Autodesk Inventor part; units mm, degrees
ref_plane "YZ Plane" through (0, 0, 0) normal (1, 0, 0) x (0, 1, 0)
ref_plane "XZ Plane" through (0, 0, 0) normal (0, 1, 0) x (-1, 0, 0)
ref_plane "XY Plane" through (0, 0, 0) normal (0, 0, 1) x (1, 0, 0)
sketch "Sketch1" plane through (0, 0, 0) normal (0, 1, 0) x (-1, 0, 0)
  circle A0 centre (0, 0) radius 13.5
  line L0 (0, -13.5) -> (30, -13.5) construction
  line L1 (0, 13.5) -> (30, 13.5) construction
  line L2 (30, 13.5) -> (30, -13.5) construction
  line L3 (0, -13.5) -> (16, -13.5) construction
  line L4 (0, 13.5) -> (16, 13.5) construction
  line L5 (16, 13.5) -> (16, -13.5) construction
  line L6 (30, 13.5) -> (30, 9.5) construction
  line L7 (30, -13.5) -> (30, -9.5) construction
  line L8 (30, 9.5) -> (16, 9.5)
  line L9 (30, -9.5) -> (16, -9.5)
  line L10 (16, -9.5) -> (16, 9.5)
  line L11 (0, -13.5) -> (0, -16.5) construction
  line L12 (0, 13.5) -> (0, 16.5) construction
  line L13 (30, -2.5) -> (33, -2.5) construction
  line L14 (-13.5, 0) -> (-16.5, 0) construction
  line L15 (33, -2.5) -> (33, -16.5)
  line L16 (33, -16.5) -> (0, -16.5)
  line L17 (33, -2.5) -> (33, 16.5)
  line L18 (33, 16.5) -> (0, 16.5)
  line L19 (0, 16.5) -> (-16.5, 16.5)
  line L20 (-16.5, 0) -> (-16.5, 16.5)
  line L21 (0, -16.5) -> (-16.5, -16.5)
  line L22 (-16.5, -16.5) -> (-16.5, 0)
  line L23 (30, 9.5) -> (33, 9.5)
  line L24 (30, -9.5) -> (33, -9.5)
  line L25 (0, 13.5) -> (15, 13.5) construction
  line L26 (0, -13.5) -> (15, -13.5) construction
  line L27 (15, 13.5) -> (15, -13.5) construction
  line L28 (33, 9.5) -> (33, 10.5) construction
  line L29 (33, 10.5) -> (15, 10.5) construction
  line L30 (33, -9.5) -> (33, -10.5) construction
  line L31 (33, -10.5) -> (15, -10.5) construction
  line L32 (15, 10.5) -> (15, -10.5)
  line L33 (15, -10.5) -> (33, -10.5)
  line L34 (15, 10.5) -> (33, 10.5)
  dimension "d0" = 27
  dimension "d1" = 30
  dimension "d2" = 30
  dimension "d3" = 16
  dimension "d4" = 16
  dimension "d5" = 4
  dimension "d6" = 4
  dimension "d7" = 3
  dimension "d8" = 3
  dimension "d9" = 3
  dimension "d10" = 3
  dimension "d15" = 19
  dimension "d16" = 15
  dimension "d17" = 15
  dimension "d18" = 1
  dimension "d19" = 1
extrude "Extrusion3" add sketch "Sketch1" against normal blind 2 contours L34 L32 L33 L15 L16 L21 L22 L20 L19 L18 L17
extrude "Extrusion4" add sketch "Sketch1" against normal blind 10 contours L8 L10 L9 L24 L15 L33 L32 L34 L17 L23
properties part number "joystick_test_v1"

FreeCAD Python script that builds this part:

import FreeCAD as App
import Part
import Sketcher
from FreeCAD import Vector

doc = App.newDocument("Part")
params = doc.addObject("Spreadsheet::Sheet", "Params")
for row, (alias, value) in enumerate([
    ("sketch1_diameter", "27 mm"),
    ("sketch1_width", "18 mm"),
    ("sketch1_height", "6 mm"),
    ("sketch1_width2", "49.5 mm"),
    ("pad1_length", "2 mm"),
    ("sketch2_height", "1 mm"),
    ("sketch2_height2", "19 mm"),
    ("sketch2_width", "17 mm"),
    ("pad2_length", "10 mm"),
], start=1):
    params.set(f"A{row}", alias)
    params.set(f"B{row}", "=" + value)
    params.setAlias(f"B{row}", alias)

body = doc.addObject("PartDesign::Body", "Body")

# Sketch on XZ plane
sketch1 = body.newObject("Sketcher::SketchObject", "Sketch")
sketch1.AttachmentSupport = (doc.getObject("XZ_Plane"), [""])
sketch1.MapMode = "FlatFace"
sketch1.addGeometry(Part.LineSegment(Vector(-15, 10, 0), Vector(-33, 10, 0)), False)
sketch1.addGeometry(Part.LineSegment(Vector(-33, 10, 0), Vector(-33, 16, 0)), False)
sketch1.addGeometry(Part.LineSegment(Vector(-33, 16, 0), Vector(16, 16, 0)), False)
sketch1.addGeometry(Part.LineSegment(Vector(16, 16, 0), Vector(16, -16, 0)), False)
sketch1.addGeometry(Part.LineSegment(Vector(16, -16, 0), Vector(-33, -16, 0)), False)
sketch1.addGeometry(Part.LineSegment(Vector(-33, -16, 0), Vector(-33, -10, 0)), False)
sketch1.addGeometry(Part.LineSegment(Vector(-33, -10, 0), Vector(-15, -10, 0)), False)
sketch1.addGeometry(Part.LineSegment(Vector(-15, -10, 0), Vector(-15, 10, 0)), False)
sketch1.addGeometry(Part.Circle(Vector(0, 0, 0), Vector(0, 0, 1), 14), False)
sketch1.addConstraint(Sketcher.Constraint("Coincident", 0, 2, 1, 1))
sketch1.addConstraint(Sketcher.Constraint("Coincident", 1, 2, 2, 1))
sketch1.addConstraint(Sketcher.Constraint("Coincident", 2, 2, 3, 1))
sketch1.addConstraint(Sketcher.Constraint("Coincident", 3, 2, 4, 1))
sketch1.addConstraint(Sketcher.Constraint("Coincident", 4, 2, 5, 1))
sketch1.addConstraint(Sketcher.Constraint("Coincident", 5, 2, 6, 1))
sketch1.addConstraint(Sketcher.Constraint("Coincident", 6, 2, 7, 1))
sketch1.addConstraint(Sketcher.Constraint("Coincident", 7, 2, 0, 1))
sketch1.addConstraint(Sketcher.Constraint("Horizontal", 0))
sketch1.addConstraint(Sketcher.Constraint("Vertical", 1))
sketch1.addConstraint(Sketcher.Constraint("Horizontal", 2))
sketch1.addConstraint(Sketcher.Constraint("Vertical", 3))
sketch1.addConstraint(Sketcher.Constraint("Horizontal", 4))
sketch1.addConstraint(Sketcher.Constraint("Vertical", 5))
sketch1.addConstraint(Sketcher.Constraint("Horizontal", 6))
sketch1.addConstraint(Sketcher.Constraint("Vertical", 7))
sketch1.addConstraint(Sketcher.Constraint("Coincident", 8, 3, -1, 1))
sketch1.addConstraint(Sketcher.Constraint("Symmetric", 1, 2, 4, 2, -1))
sketch1.addConstraint(Sketcher.Constraint("Equal", 1, 5))
sketch1.addConstraint(Sketcher.Constraint("Diameter", 8, 27.0))
sketch1.addConstraint(Sketcher.Constraint("DistanceX", 6, 2, -1, 1, 15.0))
sketch1.addConstraint(Sketcher.Constraint("DistanceY", 3, 2, 0, 2, 27.0))
sketch1.addConstraint(Sketcher.Constraint("DistanceX", 0, 2, 0, 1, 18.0))
sketch1.addConstraint(Sketcher.Constraint("DistanceY", 1, 1, 1, 2, 6.0))
sketch1.addConstraint(Sketcher.Constraint("DistanceX", 2, 1, 2, 2, 49.5))
sketch1.setExpression("Constraints[19]", "Params.sketch1_diameter")
sketch1.setExpression("Constraints[22]", "Params.sketch1_width")
sketch1.setExpression("Constraints[23]", "Params.sketch1_height")
sketch1.setExpression("Constraints[24]", "Params.sketch1_width2")
pad1 = body.newObject("PartDesign::Pad", "Pad")
pad1.Profile = sketch1
pad1.setExpression("Length", "Params.pad1_length")

# Sketch on XZ plane
sketch2 = body.newObject("Sketcher::SketchObject", "Sketch001")
sketch2.AttachmentSupport = (doc.getObject("XZ_Plane"), [""])
sketch2.MapMode = "FlatFace"
sketch2.addGeometry(Part.LineSegment(Vector(-16, 9.5, 0), Vector(-33, 9.5, 0)), False)
sketch2.addGeometry(Part.LineSegment(Vector(-33, 9.5, 0), Vector(-33, 10.5, 0)), False)
sketch2.addGeometry(Part.LineSegment(Vector(-33, 10.5, 0), Vector(-15, 10.5, 0)), False)
sketch2.addGeometry(Part.LineSegment(Vector(-15, 10.5, 0), Vector(-15, -10.5, 0)), False)
sketch2.addGeometry(Part.LineSegment(Vector(-15, -10.5, 0), Vector(-33, -10.5, 0)), False)
sketch2.addGeometry(Part.LineSegment(Vector(-33, -10.5, 0), Vector(-33, -9.5, 0)), False)
sketch2.addGeometry(Part.LineSegment(Vector(-33, -9.5, 0), Vector(-16, -9.5, 0)), False)
sketch2.addGeometry(Part.LineSegment(Vector(-16, -9.5, 0), Vector(-16, 9.5, 0)), False)
sketch2.addConstraint(Sketcher.Constraint("Coincident", 0, 2, 1, 1))
sketch2.addConstraint(Sketcher.Constraint("Coincident", 1, 2, 2, 1))
sketch2.addConstraint(Sketcher.Constraint("Coincident", 2, 2, 3, 1))
sketch2.addConstraint(Sketcher.Constraint("Coincident", 3, 2, 4, 1))
sketch2.addConstraint(Sketcher.Constraint("Coincident", 4, 2, 5, 1))
sketch2.addConstraint(Sketcher.Constraint("Coincident", 5, 2, 6, 1))
sketch2.addConstraint(Sketcher.Constraint("Coincident", 6, 2, 7, 1))
sketch2.addConstraint(Sketcher.Constraint("Coincident", 7, 2, 0, 1))
sketch2.addConstraint(Sketcher.Constraint("Horizontal", 0))
sketch2.addConstraint(Sketcher.Constraint("Vertical", 1))
sketch2.addConstraint(Sketcher.Constraint("Horizontal", 2))
sketch2.addConstraint(Sketcher.Constraint("Vertical", 3))
sketch2.addConstraint(Sketcher.Constraint("Horizontal", 4))
sketch2.addConstraint(Sketcher.Constraint("Vertical", 5))
sketch2.addConstraint(Sketcher.Constraint("Horizontal", 6))
sketch2.addConstraint(Sketcher.Constraint("Vertical", 7))
sketch2.addConstraint(Sketcher.Constraint("Symmetric", 1, 2, 4, 2, -1))
sketch2.addConstraint(Sketcher.Constraint("Equal", 1, 5))
sketch2.addConstraint(Sketcher.Constraint("DistanceY", 1, 1, 1, 2, 1.0))
sketch2.addConstraint(Sketcher.Constraint("DistanceY", 7, 1, 7, 2, 19.0))
sketch2.addConstraint(Sketcher.Constraint("DistanceX", 2, 2, -1, 1, 15.0))
sketch2.addConstraint(Sketcher.Constraint("DistanceX", 6, 2, -1, 1, 16.0))
sketch2.addConstraint(Sketcher.Constraint("DistanceX", 0, 2, 0, 1, 17.0))
sketch2.setExpression("Constraints[18]", "Params.sketch2_height")
sketch2.setExpression("Constraints[19]", "Params.sketch2_height2")
sketch2.setExpression("Constraints[22]", "Params.sketch2_width")
pad2 = body.newObject("PartDesign::Pad", "Pad001")
pad2.Profile = sketch2
pad2.setExpression("Length", "Params.pad2_length")

doc.recompute()
